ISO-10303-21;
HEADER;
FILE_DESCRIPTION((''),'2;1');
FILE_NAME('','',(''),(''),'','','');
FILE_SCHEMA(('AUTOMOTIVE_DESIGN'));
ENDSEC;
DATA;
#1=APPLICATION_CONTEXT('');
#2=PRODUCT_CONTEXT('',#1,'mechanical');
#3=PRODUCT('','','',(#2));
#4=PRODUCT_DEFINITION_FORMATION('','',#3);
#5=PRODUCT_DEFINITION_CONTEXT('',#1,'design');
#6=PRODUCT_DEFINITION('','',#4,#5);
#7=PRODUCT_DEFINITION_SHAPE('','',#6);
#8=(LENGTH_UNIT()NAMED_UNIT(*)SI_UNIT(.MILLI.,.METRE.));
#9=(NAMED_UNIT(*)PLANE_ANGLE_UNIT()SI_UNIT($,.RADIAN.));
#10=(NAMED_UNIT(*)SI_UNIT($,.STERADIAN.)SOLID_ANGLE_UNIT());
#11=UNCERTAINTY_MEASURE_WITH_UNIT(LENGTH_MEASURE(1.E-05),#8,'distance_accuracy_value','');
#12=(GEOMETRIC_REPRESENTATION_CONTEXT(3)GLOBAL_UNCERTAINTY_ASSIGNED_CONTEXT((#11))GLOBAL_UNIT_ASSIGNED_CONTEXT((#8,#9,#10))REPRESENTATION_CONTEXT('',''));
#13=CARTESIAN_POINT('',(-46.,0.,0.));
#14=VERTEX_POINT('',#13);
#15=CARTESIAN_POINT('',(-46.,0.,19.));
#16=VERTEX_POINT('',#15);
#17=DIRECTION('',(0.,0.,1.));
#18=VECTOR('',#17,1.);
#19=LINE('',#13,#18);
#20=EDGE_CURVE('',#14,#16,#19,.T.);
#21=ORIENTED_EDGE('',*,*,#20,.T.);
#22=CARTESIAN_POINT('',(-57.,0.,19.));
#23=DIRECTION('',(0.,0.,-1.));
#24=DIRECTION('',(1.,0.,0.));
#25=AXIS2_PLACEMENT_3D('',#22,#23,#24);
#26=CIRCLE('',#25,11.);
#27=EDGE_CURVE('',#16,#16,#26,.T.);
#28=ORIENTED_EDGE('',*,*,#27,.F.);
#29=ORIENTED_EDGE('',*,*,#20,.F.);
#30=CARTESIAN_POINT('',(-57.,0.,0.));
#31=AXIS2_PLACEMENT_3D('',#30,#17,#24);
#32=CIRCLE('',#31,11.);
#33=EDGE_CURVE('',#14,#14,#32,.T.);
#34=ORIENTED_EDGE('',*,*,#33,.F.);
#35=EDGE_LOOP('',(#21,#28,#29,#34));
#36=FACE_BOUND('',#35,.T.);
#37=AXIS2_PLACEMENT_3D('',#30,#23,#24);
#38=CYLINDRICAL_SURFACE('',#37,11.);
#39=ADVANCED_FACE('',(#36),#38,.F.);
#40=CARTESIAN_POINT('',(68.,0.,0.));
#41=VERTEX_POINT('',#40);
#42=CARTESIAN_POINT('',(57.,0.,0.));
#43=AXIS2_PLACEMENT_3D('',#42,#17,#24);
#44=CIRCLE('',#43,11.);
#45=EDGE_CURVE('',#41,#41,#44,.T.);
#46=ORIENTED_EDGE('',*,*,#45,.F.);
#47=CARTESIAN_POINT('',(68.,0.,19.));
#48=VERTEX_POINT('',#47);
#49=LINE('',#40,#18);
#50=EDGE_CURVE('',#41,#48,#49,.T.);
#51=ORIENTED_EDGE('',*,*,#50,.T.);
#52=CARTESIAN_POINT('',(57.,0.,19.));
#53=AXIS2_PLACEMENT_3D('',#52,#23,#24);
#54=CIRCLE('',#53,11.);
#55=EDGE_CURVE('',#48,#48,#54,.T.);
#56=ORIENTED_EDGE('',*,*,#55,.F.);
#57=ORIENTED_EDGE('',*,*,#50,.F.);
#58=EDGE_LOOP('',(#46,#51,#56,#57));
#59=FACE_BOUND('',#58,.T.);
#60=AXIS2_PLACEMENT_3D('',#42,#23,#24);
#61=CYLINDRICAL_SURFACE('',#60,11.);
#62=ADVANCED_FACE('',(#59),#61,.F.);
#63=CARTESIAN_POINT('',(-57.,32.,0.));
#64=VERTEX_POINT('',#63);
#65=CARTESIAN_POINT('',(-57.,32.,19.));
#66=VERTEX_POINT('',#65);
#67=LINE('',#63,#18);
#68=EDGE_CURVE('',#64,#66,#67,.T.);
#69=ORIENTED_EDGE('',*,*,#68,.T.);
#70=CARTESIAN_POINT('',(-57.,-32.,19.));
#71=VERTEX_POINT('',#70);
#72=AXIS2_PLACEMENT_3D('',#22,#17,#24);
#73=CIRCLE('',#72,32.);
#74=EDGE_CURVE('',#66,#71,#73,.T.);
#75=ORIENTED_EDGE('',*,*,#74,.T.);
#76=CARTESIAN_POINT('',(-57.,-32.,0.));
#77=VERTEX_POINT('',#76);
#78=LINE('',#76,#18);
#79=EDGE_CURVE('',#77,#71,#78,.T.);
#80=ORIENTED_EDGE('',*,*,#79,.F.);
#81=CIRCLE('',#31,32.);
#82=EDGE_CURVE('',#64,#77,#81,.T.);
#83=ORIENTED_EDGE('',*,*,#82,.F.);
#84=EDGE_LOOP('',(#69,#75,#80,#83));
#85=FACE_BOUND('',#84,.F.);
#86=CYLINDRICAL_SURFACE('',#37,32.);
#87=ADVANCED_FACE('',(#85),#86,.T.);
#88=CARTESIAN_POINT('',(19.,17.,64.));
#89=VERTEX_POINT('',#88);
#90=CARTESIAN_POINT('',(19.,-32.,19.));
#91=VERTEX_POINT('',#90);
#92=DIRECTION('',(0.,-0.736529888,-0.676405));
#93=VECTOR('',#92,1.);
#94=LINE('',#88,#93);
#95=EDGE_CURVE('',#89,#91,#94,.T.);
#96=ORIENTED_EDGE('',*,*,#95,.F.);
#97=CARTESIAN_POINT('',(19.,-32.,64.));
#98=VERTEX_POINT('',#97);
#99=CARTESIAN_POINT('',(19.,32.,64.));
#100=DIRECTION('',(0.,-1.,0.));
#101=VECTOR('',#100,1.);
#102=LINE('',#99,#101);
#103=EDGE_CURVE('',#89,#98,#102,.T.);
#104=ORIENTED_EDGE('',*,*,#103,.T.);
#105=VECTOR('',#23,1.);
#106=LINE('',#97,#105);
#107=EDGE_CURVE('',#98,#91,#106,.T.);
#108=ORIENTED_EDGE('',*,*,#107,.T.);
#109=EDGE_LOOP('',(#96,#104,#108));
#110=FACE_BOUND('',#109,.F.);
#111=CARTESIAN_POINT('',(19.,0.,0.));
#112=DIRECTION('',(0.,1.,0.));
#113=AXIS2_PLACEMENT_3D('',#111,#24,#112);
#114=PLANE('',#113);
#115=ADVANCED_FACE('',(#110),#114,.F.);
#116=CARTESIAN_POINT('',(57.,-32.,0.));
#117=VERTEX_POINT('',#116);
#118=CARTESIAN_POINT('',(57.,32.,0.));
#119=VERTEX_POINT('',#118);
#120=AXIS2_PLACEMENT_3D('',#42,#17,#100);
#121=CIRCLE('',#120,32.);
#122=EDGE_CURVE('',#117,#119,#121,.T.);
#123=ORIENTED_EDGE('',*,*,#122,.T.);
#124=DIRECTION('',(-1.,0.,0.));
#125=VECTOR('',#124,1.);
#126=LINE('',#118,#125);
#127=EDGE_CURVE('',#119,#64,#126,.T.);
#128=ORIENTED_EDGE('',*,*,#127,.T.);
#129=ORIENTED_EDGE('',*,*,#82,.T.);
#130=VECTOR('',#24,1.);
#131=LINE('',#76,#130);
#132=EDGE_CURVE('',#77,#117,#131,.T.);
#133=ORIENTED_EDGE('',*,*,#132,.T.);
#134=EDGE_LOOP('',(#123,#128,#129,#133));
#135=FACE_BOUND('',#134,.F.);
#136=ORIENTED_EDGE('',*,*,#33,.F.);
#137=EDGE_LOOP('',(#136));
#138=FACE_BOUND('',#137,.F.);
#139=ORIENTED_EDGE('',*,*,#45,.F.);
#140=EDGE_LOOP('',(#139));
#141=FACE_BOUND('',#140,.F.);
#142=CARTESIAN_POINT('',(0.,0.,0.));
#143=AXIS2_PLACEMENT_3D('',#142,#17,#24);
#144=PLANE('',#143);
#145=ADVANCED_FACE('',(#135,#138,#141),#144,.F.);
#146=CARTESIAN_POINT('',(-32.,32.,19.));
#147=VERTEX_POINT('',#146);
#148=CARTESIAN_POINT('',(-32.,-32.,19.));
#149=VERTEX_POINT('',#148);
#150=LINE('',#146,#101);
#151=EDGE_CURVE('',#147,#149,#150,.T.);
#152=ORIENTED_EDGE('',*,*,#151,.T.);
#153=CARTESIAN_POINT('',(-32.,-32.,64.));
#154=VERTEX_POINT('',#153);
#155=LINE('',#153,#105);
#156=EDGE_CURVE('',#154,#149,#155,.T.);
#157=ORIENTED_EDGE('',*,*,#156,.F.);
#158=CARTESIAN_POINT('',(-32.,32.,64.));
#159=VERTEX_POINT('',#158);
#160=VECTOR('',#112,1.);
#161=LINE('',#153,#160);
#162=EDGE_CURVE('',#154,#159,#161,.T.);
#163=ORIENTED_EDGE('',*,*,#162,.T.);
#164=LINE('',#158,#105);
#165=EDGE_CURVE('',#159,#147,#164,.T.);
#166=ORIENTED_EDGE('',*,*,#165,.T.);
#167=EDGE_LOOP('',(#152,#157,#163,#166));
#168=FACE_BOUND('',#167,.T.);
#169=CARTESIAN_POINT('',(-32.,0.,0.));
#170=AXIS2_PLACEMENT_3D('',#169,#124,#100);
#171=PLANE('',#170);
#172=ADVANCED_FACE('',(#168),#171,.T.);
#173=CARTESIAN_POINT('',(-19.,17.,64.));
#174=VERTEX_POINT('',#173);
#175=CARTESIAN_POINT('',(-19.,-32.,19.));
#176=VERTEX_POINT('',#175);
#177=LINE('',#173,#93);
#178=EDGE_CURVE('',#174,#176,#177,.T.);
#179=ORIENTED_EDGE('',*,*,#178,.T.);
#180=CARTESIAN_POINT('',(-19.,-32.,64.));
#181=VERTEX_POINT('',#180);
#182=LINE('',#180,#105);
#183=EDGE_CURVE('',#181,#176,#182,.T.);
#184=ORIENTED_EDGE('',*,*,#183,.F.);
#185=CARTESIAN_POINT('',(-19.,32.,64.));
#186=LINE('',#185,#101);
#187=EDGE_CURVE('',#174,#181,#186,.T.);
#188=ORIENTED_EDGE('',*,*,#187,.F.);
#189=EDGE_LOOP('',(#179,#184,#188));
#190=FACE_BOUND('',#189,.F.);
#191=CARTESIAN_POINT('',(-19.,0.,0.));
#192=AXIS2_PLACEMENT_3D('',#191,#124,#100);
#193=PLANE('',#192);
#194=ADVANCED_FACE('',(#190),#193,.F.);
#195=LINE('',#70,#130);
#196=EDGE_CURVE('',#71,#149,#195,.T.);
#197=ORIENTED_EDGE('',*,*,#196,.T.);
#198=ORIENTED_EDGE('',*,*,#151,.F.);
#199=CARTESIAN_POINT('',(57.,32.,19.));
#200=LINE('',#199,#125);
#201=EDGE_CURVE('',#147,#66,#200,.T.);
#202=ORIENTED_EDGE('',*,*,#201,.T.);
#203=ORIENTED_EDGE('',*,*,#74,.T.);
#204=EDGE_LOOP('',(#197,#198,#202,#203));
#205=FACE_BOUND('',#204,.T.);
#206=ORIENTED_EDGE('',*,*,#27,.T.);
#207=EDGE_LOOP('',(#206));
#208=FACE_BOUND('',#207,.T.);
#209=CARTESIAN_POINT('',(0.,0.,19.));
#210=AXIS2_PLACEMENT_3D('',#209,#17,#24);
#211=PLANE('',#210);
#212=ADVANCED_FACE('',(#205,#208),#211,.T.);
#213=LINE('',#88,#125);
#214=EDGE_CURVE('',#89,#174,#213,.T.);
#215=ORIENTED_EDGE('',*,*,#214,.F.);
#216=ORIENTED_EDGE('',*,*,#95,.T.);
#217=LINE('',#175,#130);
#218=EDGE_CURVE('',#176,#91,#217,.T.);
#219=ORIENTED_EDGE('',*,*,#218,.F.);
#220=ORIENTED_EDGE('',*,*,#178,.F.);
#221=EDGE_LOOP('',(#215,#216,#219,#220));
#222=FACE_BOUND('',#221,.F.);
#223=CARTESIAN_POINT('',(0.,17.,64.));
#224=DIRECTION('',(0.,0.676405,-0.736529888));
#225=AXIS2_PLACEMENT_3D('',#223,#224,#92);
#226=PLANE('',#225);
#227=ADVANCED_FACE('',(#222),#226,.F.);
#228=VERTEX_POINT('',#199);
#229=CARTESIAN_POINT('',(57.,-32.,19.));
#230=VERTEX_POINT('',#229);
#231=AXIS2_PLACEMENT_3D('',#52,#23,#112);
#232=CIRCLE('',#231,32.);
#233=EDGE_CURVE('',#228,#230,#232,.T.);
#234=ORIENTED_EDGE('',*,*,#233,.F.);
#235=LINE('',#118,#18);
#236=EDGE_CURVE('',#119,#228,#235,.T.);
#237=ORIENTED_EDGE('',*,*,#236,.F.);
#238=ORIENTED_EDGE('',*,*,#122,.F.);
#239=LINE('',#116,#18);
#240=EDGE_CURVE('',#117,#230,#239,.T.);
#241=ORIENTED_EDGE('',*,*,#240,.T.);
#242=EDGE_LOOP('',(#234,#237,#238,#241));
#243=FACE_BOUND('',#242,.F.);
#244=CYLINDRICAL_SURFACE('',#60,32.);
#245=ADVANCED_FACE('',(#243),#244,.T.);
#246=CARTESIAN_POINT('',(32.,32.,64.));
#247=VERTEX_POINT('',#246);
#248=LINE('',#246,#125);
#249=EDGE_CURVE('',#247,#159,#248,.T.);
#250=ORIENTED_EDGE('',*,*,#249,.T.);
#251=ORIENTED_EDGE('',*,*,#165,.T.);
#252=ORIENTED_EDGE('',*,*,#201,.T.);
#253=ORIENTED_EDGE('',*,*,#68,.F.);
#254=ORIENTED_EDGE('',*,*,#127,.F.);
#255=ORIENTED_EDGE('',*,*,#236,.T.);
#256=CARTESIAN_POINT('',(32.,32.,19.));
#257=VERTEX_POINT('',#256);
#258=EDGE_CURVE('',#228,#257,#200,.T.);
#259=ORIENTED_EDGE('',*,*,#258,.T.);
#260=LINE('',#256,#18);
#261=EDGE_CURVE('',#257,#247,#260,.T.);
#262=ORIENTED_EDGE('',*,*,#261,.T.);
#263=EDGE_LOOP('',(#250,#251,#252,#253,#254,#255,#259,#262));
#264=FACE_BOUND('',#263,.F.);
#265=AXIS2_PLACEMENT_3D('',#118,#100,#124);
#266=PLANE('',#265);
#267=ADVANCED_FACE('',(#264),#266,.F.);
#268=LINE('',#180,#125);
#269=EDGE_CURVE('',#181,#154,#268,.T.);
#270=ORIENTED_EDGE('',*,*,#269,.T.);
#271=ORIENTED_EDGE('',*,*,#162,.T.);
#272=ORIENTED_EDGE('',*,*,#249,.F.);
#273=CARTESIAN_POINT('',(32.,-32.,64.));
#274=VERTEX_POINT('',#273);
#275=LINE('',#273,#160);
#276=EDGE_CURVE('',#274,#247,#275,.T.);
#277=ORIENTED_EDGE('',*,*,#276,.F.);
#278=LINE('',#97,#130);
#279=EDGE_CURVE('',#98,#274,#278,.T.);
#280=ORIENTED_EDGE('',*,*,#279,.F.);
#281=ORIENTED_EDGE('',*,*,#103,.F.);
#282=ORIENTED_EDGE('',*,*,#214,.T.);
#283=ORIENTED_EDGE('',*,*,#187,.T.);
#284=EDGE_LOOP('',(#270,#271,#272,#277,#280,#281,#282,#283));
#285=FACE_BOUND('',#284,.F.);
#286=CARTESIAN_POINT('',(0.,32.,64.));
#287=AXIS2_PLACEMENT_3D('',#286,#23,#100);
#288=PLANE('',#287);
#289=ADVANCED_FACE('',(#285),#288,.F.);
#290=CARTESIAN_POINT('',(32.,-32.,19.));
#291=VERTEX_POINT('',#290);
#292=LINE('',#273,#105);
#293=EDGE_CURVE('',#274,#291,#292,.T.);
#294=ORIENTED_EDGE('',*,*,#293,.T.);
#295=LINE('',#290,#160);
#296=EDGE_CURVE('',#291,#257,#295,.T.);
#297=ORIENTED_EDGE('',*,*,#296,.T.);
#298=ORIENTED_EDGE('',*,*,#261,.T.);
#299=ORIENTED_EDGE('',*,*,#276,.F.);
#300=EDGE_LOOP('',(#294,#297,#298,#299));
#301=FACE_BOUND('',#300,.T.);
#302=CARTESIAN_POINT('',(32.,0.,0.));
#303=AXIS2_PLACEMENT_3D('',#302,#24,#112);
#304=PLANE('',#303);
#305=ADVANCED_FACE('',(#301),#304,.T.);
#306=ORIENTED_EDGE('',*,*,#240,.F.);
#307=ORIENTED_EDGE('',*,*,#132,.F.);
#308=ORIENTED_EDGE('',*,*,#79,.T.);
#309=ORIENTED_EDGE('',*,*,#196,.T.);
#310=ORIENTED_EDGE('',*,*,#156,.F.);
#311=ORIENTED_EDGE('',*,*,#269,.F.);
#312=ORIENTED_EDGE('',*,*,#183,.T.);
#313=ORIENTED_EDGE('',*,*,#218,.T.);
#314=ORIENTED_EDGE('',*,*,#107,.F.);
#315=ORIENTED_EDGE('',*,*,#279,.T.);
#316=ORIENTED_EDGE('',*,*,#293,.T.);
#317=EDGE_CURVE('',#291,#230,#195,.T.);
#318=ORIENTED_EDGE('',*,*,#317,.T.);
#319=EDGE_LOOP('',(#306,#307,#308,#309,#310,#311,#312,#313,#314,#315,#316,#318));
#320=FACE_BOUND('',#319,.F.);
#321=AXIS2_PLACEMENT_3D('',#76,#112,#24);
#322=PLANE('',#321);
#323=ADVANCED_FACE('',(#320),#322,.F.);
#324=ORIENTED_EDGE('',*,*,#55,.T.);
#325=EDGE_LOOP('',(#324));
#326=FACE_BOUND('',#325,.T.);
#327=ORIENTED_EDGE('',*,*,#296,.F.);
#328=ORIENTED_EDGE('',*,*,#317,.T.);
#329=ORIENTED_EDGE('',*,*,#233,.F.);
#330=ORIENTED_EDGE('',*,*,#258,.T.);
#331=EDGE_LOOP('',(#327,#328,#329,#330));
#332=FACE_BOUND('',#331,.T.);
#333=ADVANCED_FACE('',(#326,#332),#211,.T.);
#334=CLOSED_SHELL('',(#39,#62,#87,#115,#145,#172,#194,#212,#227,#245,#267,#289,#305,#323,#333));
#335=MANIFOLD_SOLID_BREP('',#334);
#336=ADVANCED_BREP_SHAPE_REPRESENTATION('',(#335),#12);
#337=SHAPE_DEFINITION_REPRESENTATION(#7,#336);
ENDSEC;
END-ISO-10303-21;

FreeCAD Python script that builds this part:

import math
import FreeCAD as App
import Part
import Sketcher
from FreeCAD import Vector
Q = App.Units.Quantity


def add_polygon(sketch, points):
    """Adds a closed chain of lines whose ends are joined by coincident constraints."""
    first, n = sketch.GeometryCount, len(points)
    for a, b in zip(points, points[1:] + points[:1]):
        sketch.addGeometry(Part.LineSegment(App.Vector(*a, 0), App.Vector(*b, 0)), False)
    for i in range(n):
        sketch.addConstraint(Sketcher.Constraint("Coincident", first + i, 2, first + (i + 1) % n, 1))

doc = App.newDocument("Part")
body = doc.addObject("PartDesign::Body", "Body")

sketch1 = doc.addObject("Sketcher::SketchObject", "Sketch")
body.addObject(sketch1)
sketch1.AttachmentSupport = (doc.XY_Plane, [""])
sketch1.MapMode = "FlatFace"
sketch1.addGeometry(Part.LineSegment(Vector(-57, -32, 0), Vector(57, -32, 0)), False)
sketch1.addGeometry(Part.ArcOfCircle(Part.Circle(Vector(57, 0, 0), Vector(0, 0, 1), 32), math.radians(-90), math.radians(90)), False)
sketch1.addGeometry(Part.LineSegment(Vector(57, 32, 0), Vector(-57, 32, 0)), False)
sketch1.addGeometry(Part.ArcOfCircle(Part.Circle(Vector(-57, 0, 0), Vector(0, 0, 1), 32), math.radians(90), math.radians(270)), False)
sketch1.addGeometry(Part.Circle(Vector(57, 0, 0), Vector(0, 0, 1), 11), False)
sketch1.addGeometry(Part.Circle(Vector(-57, 0, 0), Vector(0, 0, 1), 11), False)
sketch1.addConstraint(Sketcher.Constraint("Tangent", 0, 2, 1, 1))
sketch1.addConstraint(Sketcher.Constraint("Tangent", 1, 2, 2, 1))
sketch1.addConstraint(Sketcher.Constraint("Tangent", 2, 2, 3, 1))
sketch1.addConstraint(Sketcher.Constraint("Tangent", 3, 2, 0, 1))
sketch1.addConstraint(Sketcher.Constraint("Horizontal", 0))
sketch1.addConstraint(Sketcher.Constraint("Horizontal", 2))
sketch1.addConstraint(Sketcher.Constraint("Coincident", 4, 3, 1, 3))
sketch1.addConstraint(Sketcher.Constraint("Coincident", 5, 3, 3, 3))
sketch1.addConstraint(Sketcher.Constraint("Equal", 4, 5))
sketch1.addConstraint(Sketcher.Constraint("Symmetric", 1, 3, 3, 3, -1, 1))
sketch1.addConstraint(Sketcher.Constraint("Diameter", 4, Q("22 mm")))
sketch1.addConstraint(Sketcher.Constraint("Radius", 1, Q("32 mm")))
sketch1.addConstraint(Sketcher.Constraint("DistanceX", 0, 1, 0, 2, Q("114 mm")))
pad1 = doc.addObject("PartDesign::Pad", "Pad")
body.addObject(pad1)
pad1.Profile = sketch1
pad1.Length = 19

sketch2 = doc.addObject("Sketcher::SketchObject", "Sketch001")
body.addObject(sketch2)
sketch2.AttachmentSupport = (doc.YZ_Plane, [""])
sketch2.MapMode = "FlatFace"
add_polygon(sketch2, [(17, 64), (-32, 19), (32, 19), (32, 64)])
sketch2.addConstraint(Sketcher.Constraint("Horizontal", 1))
sketch2.addConstraint(Sketcher.Constraint("Vertical", 2))
sketch2.addConstraint(Sketcher.Constraint("Horizontal", 3))
sketch2.addConstraint(Sketcher.Constraint("DistanceX", 3, 2, 3, 1, Q("15 mm")))
sketch2.addConstraint(Sketcher.Constraint("DistanceY", 2, 1, 2, 2, Q("45 mm")))
sketch2.addConstraint(Sketcher.Constraint("DistanceX", 1, 1, 1, 2, Q("64 mm")))
sketch2.addConstraint(Sketcher.Constraint("DistanceX", 0, 2, -1, 1, Q("32 mm")))
sketch2.addConstraint(Sketcher.Constraint("DistanceY", -1, 1, 0, 2, Q("19 mm")))
pad2 = doc.addObject("PartDesign::Pad", "Pad001")
body.addObject(pad2)
pad2.Profile = sketch2
pad2.Length = 38
pad2.Midplane = True

sketch3 = doc.addObject("Sketcher::SketchObject", "Sketch002")
body.addObject(sketch3)
sketch3.AttachmentSupport = (doc.YZ_Plane, [""])
sketch3.MapMode = "FlatFace"
sketch3.AttachmentOffset = App.Placement(Vector(0, 0, 19), App.Rotation())
add_polygon(sketch3, [(32, 64), (-32, 64), (-32, 19), (32, 19)])
sketch3.addConstraint(Sketcher.Constraint("Horizontal", 0))
sketch3.addConstraint(Sketcher.Constraint("Vertical", 1))
sketch3.addConstraint(Sketcher.Constraint("Horizontal", 2))
sketch3.addConstraint(Sketcher.Constraint("Vertical", 3))
sketch3.addConstraint(Sketcher.Constraint("DistanceX", 0, 2, 0, 1, Q("64 mm")))
sketch3.addConstraint(Sketcher.Constraint("DistanceY", 1, 2, 1, 1, Q("45 mm")))
sketch3.addConstraint(Sketcher.Constraint("DistanceX", 0, 2, -1, 1, Q("32 mm")))
sketch3.addConstraint(Sketcher.Constraint("DistanceY", -1, 1, 0, 2, Q("64 mm")))
pad3 = doc.addObject("PartDesign::Pad", "Pad002")
body.addObject(pad3)
pad3.Profile = sketch3
pad3.Length = 13

sketch4 = doc.addObject("Sketcher::SketchObject", "Sketch003")
body.addObject(sketch4)
sketch4.AttachmentSupport = (doc.YZ_Plane, [""])
sketch4.MapMode = "FlatFace"
sketch4.AttachmentOffset = App.Placement(Vector(0, 0, -19), App.Rotation())
add_polygon(sketch4, [(32, 19), (-32, 19), (-32, 64), (32, 64)])
sketch4.addConstraint(Sketcher.Constraint("Horizontal", 0))
sketch4.addConstraint(Sketcher.Constraint("Vertical", 1))
sketch4.addConstraint(Sketcher.Constraint("Horizontal", 2))
sketch4.addConstraint(Sketcher.Constraint("Vertical", 3))
sketch4.addConstraint(Sketcher.Constraint("DistanceX", 0, 2, 0, 1, Q("64 mm")))
sketch4.addConstraint(Sketcher.Constraint("DistanceY", 1, 1, 1, 2, Q("45 mm")))
sketch4.addConstraint(Sketcher.Constraint("DistanceX", 0, 2, -1, 1, Q("32 mm")))
sketch4.addConstraint(Sketcher.Constraint("DistanceY", -1, 1, 0, 2, Q("19 mm")))
pad4 = doc.addObject("PartDesign::Pad", "Pad003")
body.addObject(pad4)
pad4.Profile = sketch4
pad4.Length = 13
pad4.Reversed = True

doc.recompute()
